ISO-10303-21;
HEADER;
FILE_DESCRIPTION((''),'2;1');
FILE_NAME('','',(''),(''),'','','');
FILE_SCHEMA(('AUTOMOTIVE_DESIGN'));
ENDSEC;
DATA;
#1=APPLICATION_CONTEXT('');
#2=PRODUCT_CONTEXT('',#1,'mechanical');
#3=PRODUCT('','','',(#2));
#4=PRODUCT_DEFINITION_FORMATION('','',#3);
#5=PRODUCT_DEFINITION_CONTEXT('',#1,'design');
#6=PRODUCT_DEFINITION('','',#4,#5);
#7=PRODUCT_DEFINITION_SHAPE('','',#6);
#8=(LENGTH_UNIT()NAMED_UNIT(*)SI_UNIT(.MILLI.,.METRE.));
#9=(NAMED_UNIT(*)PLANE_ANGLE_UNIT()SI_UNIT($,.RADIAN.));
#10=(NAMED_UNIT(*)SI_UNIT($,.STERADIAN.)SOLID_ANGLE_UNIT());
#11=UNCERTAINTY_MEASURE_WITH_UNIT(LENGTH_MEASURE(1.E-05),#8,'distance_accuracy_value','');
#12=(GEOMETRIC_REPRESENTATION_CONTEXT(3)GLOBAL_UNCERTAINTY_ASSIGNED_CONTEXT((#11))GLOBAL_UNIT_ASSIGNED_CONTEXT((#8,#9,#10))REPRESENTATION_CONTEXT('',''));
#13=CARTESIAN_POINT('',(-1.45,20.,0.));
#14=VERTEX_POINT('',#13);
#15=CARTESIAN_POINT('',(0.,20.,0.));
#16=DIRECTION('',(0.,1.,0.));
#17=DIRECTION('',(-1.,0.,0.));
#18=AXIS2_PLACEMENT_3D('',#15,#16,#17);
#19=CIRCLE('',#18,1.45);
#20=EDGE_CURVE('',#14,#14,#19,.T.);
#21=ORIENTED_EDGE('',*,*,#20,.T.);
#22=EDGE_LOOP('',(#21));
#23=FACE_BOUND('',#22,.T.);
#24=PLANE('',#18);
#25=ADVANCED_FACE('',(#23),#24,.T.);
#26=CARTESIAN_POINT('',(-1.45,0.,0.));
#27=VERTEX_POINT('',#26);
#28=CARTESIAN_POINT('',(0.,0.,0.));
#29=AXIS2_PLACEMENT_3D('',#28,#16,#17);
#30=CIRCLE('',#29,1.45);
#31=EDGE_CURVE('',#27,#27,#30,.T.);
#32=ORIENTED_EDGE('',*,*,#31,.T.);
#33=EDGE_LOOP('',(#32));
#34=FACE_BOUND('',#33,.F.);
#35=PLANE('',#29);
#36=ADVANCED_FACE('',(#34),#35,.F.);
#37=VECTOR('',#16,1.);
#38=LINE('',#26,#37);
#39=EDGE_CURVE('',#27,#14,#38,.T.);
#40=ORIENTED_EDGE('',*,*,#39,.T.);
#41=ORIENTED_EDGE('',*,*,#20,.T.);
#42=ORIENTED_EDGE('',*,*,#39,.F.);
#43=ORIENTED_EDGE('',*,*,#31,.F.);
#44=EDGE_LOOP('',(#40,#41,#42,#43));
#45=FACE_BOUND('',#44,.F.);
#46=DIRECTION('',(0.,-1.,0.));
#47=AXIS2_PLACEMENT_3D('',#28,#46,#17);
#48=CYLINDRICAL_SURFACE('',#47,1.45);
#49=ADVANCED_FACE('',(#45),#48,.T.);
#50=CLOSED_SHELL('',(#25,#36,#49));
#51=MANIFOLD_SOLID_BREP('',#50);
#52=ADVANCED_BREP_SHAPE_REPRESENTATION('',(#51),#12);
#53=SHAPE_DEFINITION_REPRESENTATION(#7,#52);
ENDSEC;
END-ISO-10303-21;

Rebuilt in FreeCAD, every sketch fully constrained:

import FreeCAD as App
import Part
import Sketcher
from FreeCAD import Vector

doc = App.newDocument("Part")
body = doc.addObject("PartDesign::Body", "Body")

sketch1 = body.newObject("Sketcher::SketchObject", "Sketch")
sketch1.AttachmentSupport = (doc.getObject("XZ_Plane"), [""])
sketch1.MapMode = "FlatFace"
sketch1.addGeometry(Part.Circle(Vector(0, 0, 0), Vector(0, 0, 1), 1.45), False)
sketch1.addConstraint(Sketcher.Constraint("Coincident", 0, 3, -1, 1))
sketch1.addConstraint(Sketcher.Constraint("Diameter", 0, 2.9))
pad1 = body.newObject("PartDesign::Pad", "Pad")
pad1.Profile = sketch1
pad1.Length = 20
pad1.Reversed = True

doc.recompute()
